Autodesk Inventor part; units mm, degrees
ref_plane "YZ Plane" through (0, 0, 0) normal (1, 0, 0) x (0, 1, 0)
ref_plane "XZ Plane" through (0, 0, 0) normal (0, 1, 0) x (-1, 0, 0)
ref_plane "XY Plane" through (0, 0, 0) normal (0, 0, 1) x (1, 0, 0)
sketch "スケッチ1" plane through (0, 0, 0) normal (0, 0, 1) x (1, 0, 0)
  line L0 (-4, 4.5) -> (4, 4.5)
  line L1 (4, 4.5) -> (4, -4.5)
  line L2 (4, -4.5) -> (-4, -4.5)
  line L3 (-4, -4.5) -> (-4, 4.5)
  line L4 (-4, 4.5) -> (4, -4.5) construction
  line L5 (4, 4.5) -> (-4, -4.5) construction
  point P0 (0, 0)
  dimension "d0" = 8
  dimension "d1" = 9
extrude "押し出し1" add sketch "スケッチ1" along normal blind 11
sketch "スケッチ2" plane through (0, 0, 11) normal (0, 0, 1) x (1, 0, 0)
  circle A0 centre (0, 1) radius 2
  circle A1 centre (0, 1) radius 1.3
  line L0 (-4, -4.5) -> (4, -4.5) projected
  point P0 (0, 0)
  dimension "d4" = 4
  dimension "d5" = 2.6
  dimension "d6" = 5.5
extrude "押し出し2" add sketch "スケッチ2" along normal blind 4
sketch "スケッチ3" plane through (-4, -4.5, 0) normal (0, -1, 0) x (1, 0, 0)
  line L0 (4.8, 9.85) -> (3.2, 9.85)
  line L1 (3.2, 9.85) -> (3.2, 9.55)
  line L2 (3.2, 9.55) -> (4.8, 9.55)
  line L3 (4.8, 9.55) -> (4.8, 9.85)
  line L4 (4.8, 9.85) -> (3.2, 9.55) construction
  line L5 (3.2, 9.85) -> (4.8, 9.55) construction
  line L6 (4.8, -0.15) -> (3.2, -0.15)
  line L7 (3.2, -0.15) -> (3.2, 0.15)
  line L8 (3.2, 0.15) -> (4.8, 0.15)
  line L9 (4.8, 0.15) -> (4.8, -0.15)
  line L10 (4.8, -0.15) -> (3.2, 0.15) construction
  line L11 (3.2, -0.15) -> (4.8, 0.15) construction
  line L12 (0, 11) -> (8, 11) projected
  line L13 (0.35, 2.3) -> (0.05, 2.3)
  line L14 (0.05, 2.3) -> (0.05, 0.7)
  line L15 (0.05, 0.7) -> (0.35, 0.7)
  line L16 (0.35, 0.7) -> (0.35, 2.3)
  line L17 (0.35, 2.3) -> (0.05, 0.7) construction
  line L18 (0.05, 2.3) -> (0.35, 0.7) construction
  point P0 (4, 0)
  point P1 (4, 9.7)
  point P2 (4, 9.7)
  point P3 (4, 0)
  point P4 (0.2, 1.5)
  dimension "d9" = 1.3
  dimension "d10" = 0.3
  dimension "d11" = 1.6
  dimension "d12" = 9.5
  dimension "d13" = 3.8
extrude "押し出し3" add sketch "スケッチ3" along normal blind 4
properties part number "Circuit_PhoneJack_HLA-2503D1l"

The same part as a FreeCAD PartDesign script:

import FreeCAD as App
import Part
import Sketcher
from FreeCAD import Vector


def add_polygon(sketch, points):
    """Adds a closed chain of lines whose ends are joined by coincident constraints."""
    first, n = sketch.GeometryCount, len(points)
    for a, b in zip(points, points[1:] + points[:1]):
        sketch.addGeometry(Part.LineSegment(App.Vector(*a, 0), App.Vector(*b, 0)), False)
    for i in range(n):
        sketch.addConstraint(Sketcher.Constraint("Coincident", first + i, 2, first + (i + 1) % n, 1))

doc = App.newDocument("Part")
body = doc.addObject("PartDesign::Body", "Body")

sketch1 = doc.addObject("Sketcher::SketchObject", "Sketch")
body.addObject(sketch1)
sketch1.AttachmentSupport = (doc.XY_Plane, [""])
sketch1.MapMode = "FlatFace"
add_polygon(sketch1, [(4, 4), (-4, 4), (-4, -4), (4, -4)])
sketch1.addConstraint([
    Sketcher.Constraint("Horizontal", 0),
    Sketcher.Constraint("Vertical", 1),
    Sketcher.Constraint("Horizontal", 2),
    Sketcher.Constraint("Vertical", 3),
    Sketcher.Constraint("Symmetric", 0, 2, 2, 2, -1, 1),
    Sketcher.Constraint("DistanceX", 0, 2, 0, 1, 8.0),
    Sketcher.Constraint("DistanceY", 1, 2, 1, 1, 9.0),
])
pad1 = doc.addObject("PartDesign::Pad", "Pad")
body.addObject(pad1)
pad1.Profile = sketch1
pad1.Length = 11

sketch2 = doc.addObject("Sketcher::SketchObject", "Sketch001")
body.addObject(sketch2)
sketch2.AttachmentSupport = (doc.XY_Plane, [""])
sketch2.MapMode = "FlatFace"
sketch2.AttachmentOffset = App.Placement(Vector(0, 0, 11), App.Rotation())
sketch2.addGeometry([
    Part.Circle(Vector(0, 1, 0), Vector(0, 0, 1), 2),
    Part.Circle(Vector(0, 1, 0), Vector(0, 0, 1), 1.3),
], False)
sketch2.addConstraint([
    Sketcher.Constraint("Coincident", 1, 3, 0, 3),
    Sketcher.Constraint("PointOnObject", 0, 3, -2),
    Sketcher.Constraint("Diameter", 0, 4.0),
    Sketcher.Constraint("Diameter", 1, 2.6),
    Sketcher.Constraint("DistanceY", -1, 1, 0, 3, 1.0),
])
pad2 = doc.addObject("PartDesign::Pad", "Pad001")
body.addObject(pad2)
pad2.Profile = sketch2
pad2.Length = 4

sketch3 = doc.addObject("Sketcher::SketchObject", "Sketch002")
body.addObject(sketch3)
sketch3.AttachmentSupport = (doc.XZ_Plane, [""])
sketch3.MapMode = "FlatFace"
sketch3.AttachmentOffset = App.Placement(Vector(0, 0, 4.5), App.Rotation())
add_polygon(sketch3, [(0.8, 9.55), (0.8, 9.85), (-0.8, 9.85), (-0.8, 9.55)])
add_polygon(sketch3, [(-0.8, -0.15), (0.8, -0.15), (0.8, 0.15), (-0.8, 0.15)])
add_polygon(sketch3, [(-3.65, 0.7), (-3.65, 2.3), (-3.95, 2.3), (-3.95, 0.7)])
sketch3.addConstraint([
    Sketcher.Constraint("Vertical", 0),
    Sketcher.Constraint("Horizontal", 1),
    Sketcher.Constraint("Vertical", 2),
    Sketcher.Constraint("Horizontal", 3),
    Sketcher.Constraint("Horizontal", 4),
    Sketcher.Constraint("Vertical", 5),
    Sketcher.Constraint("Horizontal", 6),
    Sketcher.Constraint("Vertical", 7),
    Sketcher.Constraint("Vertical", 8),
    Sketcher.Constraint("Horizontal", 9),
    Sketcher.Constraint("Vertical", 10),
    Sketcher.Constraint("Horizontal", 11),
    Sketcher.Constraint("Symmetric", 4, 2, 6, 2, -1, 1),
    Sketcher.Constraint("Vertical", 3, 2, 4, 2),
    Sketcher.Constraint("Vertical", 2, 2, 6, 2),
    Sketcher.Constraint("Equal", 11, 0),
    Sketcher.Constraint("Equal", 2, 5),
    Sketcher.Constraint("Equal", 6, 8),
    Sketcher.Constraint("DistanceX", 1, 2, 1, 1, 1.6),
    Sketcher.Constraint("DistanceX", 9, 2, 9, 1, 0.3),
    Sketcher.Constraint("DistanceY", 4, 2, 0, 2, 10.0),
    Sketcher.Constraint("DistanceY", -1, 1, 8, 2, 2.3),
    Sketcher.Constraint("DistanceX", 8, 2, -1, 1, 3.65),
])
pad3 = doc.addObject("PartDesign::Pad", "Pad002")
body.addObject(pad3)
pad3.Profile = sketch3
pad3.Length = 4

doc.recompute()
